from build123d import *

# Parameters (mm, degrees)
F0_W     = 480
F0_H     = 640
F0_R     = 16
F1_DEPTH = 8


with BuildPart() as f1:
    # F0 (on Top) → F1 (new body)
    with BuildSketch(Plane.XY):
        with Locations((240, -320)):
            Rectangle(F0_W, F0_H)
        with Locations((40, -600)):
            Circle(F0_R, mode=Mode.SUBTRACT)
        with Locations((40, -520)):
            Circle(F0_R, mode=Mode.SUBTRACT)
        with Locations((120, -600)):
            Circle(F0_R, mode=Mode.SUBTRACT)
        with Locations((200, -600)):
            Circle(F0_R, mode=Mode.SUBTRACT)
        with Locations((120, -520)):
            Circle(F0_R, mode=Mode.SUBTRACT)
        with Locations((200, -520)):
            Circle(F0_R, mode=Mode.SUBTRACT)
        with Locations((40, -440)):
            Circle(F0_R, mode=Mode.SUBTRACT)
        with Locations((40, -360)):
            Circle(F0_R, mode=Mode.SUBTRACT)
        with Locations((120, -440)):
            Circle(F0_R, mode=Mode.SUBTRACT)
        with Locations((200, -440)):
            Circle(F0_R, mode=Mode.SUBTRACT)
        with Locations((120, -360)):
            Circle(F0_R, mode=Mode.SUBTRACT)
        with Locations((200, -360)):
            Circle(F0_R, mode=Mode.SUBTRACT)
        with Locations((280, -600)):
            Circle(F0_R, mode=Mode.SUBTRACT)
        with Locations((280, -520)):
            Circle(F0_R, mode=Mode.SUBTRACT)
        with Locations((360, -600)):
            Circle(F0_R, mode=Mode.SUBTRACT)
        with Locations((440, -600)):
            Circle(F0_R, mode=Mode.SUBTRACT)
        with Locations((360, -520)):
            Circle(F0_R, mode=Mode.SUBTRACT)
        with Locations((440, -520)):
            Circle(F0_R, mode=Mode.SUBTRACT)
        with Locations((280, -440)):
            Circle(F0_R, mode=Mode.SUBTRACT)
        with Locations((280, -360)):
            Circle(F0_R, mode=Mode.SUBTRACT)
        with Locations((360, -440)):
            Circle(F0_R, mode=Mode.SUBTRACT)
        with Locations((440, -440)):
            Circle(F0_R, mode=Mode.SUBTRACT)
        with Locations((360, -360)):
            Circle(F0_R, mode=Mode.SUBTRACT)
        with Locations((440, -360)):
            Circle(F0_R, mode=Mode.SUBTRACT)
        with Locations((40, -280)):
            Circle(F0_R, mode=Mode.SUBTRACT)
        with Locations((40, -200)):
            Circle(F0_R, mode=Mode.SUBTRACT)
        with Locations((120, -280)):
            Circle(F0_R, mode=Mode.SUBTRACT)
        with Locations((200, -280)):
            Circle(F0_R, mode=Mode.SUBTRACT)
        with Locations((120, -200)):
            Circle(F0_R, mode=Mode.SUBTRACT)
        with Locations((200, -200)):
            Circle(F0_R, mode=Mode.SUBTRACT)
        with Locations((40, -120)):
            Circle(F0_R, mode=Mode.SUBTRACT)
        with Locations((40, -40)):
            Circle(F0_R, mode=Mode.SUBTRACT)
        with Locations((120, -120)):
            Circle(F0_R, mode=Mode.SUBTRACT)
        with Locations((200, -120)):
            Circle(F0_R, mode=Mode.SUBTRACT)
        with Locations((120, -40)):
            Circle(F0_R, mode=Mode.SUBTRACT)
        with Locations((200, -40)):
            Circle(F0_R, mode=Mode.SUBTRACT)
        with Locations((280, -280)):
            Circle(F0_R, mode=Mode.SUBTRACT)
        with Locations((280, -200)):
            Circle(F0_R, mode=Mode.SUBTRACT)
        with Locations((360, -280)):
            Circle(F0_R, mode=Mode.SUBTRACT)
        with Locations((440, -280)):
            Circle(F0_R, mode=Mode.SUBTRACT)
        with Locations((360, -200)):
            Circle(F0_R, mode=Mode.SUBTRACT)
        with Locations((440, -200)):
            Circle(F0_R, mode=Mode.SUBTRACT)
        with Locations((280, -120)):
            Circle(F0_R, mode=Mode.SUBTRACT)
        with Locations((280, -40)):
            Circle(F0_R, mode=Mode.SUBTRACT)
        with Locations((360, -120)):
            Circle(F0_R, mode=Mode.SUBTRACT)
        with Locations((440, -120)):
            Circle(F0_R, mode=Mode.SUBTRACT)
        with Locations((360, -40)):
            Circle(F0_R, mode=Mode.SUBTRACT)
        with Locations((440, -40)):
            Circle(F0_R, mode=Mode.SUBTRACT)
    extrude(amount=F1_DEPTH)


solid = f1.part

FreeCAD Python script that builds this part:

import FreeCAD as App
import Part
import Sketcher

V = App.Vector

doc = App.newDocument("Part")
params = doc.addObject("Spreadsheet::Sheet", "Params")
for row, (alias, value) in enumerate([
    ("sketch1_diameter", "32 mm"),
    ("sketch1_width", "480 mm"),
    ("sketch1_height", "640 mm"),
    ("pad1_length", "8 mm"),
], start=1):
    params.set(f"A{row}", alias)
    params.set(f"B{row}", "=" + value)
    params.setAlias(f"B{row}", alias)

body = doc.addObject("PartDesign::Body", "Body")

# Sketch on XY plane
sketch1 = doc.addObject("Sketcher::SketchObject", "Sketch")
body.addObject(sketch1)
sketch1.AttachmentSupport = (doc.XY_Plane, [""])
sketch1.MapMode = "FlatFace"
sketch1.addGeometry([
    Part.LineSegment(V(0, 0, 0), V(0, -640, 0)),  # 0
    Part.LineSegment(V(0, -640, 0), V(480, -640, 0)),  # 1
    Part.LineSegment(V(480, -640, 0), V(480, 0, 0)),  # 2
    Part.LineSegment(V(480, 0, 0), V(0, 0, 0)),  # 3
    Part.Circle(V(40, -600, 0), V(0, 0, 1), 16),  # 4
    Part.Circle(V(120, -600, 0), V(0, 0, 1), 16),  # 5
    Part.Circle(V(40, -520, 0), V(0, 0, 1), 16),  # 6
    Part.Circle(V(120, -520, 0), V(0, 0, 1), 16),  # 7
    Part.Circle(V(200, -600, 0), V(0, 0, 1), 16),  # 8
    Part.Circle(V(200, -520, 0), V(0, 0, 1), 16),  # 9
    Part.Circle(V(40, -440, 0), V(0, 0, 1), 16),  # 10
    Part.Circle(V(120, -440, 0), V(0, 0, 1), 16),  # 11
    Part.Circle(V(40, -360, 0), V(0, 0, 1), 16),  # 12
    Part.Circle(V(120, -360, 0), V(0, 0, 1), 16),  # 13
    Part.Circle(V(200, -440, 0), V(0, 0, 1), 16),  # 14
    Part.Circle(V(200, -360, 0), V(0, 0, 1), 16),  # 15
    Part.Circle(V(280, -600, 0), V(0, 0, 1), 16),  # 16
    Part.Circle(V(280, -520, 0), V(0, 0, 1), 16),  # 17
    Part.Circle(V(360, -600, 0), V(0, 0, 1), 16),  # 18
    Part.Circle(V(440, -600, 0), V(0, 0, 1), 16),  # 19
    Part.Circle(V(360, -520, 0), V(0, 0, 1), 16),  # 20
    Part.Circle(V(440, -520, 0), V(0, 0, 1), 16),  # 21
    Part.Circle(V(280, -440, 0), V(0, 0, 1), 16),  # 22
    Part.Circle(V(280, -360, 0), V(0, 0, 1), 16),  # 23
    Part.Circle(V(360, -440, 0), V(0, 0, 1), 16),  # 24
    Part.Circle(V(440, -440, 0), V(0, 0, 1), 16),  # 25
    Part.Circle(V(360, -360, 0), V(0, 0, 1), 16),  # 26
    Part.Circle(V(440, -360, 0), V(0, 0, 1), 16),  # 27
    Part.Circle(V(40, -280, 0), V(0, 0, 1), 16),  # 28
    Part.Circle(V(120, -280, 0), V(0, 0, 1), 16),  # 29
    Part.Circle(V(40, -200, 0), V(0, 0, 1), 16),  # 30
    Part.Circle(V(120, -200, 0), V(0, 0, 1), 16),  # 31
    Part.Circle(V(200, -280, 0), V(0, 0, 1), 16),  # 32
    Part.Circle(V(200, -200, 0), V(0, 0, 1), 16),  # 33
    Part.Circle(V(40, -120, 0), V(0, 0, 1), 16),  # 34
    Part.Circle(V(120, -120, 0), V(0, 0, 1), 16),  # 35
    Part.Circle(V(40, -40, 0), V(0, 0, 1), 16),  # 36
    Part.Circle(V(120, -40, 0), V(0, 0, 1), 16),  # 37
    Part.Circle(V(200, -120, 0), V(0, 0, 1), 16),  # 38
    Part.Circle(V(200, -40, 0), V(0, 0, 1), 16),  # 39
    Part.Circle(V(280, -280, 0), V(0, 0, 1), 16),  # 40
    Part.Circle(V(280, -200, 0), V(0, 0, 1), 16),  # 41
    Part.Circle(V(360, -280, 0), V(0, 0, 1), 16),  # 42
    Part.Circle(V(440, -280, 0), V(0, 0, 1), 16),  # 43
    Part.Circle(V(360, -200, 0), V(0, 0, 1), 16),  # 44
    Part.Circle(V(440, -200, 0), V(0, 0, 1), 16),  # 45
    Part.Circle(V(280, -120, 0), V(0, 0, 1), 16),  # 46
    Part.Circle(V(280, -40, 0), V(0, 0, 1), 16),  # 47
    Part.Circle(V(360, -120, 0), V(0, 0, 1), 16),  # 48
    Part.Circle(V(440, -120, 0), V(0, 0, 1), 16),  # 49
    Part.Circle(V(360, -40, 0), V(0, 0, 1), 16),  # 50
    Part.Circle(V(440, -40, 0), V(0, 0, 1), 16),  # 51
], False)
sketch1.addConstraint([
    Sketcher.Constraint("Coincident", 0, 2, 1, 1),
    Sketcher.Constraint("Coincident", 1, 2, 2, 1),
    Sketcher.Constraint("Coincident", 2, 2, 3, 1),
    Sketcher.Constraint("Coincident", 3, 2, 0, 1),
    Sketcher.Constraint("Vertical", 0),
    Sketcher.Constraint("Horizontal", 1),
    Sketcher.Constraint("Vertical", 2),
    Sketcher.Constraint("Horizontal", 3),
    Sketcher.Constraint("Coincident", 3, 2, -1, 1),
    Sketcher.Constraint("Equal", 4, 5),
    Sketcher.Constraint("Equal", 5, 6),
    Sketcher.Constraint("Equal", 6, 7),
    Sketcher.Constraint("Equal", 7, 8),
    Sketcher.Constraint("Equal", 8, 9),
    Sketcher.Constraint("Equal", 9, 10),
    Sketcher.Constraint("Equal", 10, 11),
    Sketcher.Constraint("Equal", 11, 12),
    Sketcher.Constraint("Equal", 12, 13),
    Sketcher.Constraint("Equal", 13, 14),
    Sketcher.Constraint("Equal", 14, 15),
    Sketcher.Constraint("Equal", 15, 16),
    Sketcher.Constraint("Equal", 16, 17),
    Sketcher.Constraint("Equal", 17, 18),
    Sketcher.Constraint("Equal", 18, 19),
    Sketcher.Constraint("Equal", 19, 20),
    Sketcher.Constraint("Equal", 20, 21),
    Sketcher.Constraint("Equal", 21, 22),
    Sketcher.Constraint("Equal", 22, 23),
    Sketcher.Constraint("Equal", 23, 24),
    Sketcher.Constraint("Equal", 24, 25),
    Sketcher.Constraint("Equal", 25, 26),
    Sketcher.Constraint("Equal", 26, 27),
    Sketcher.Constraint("Equal", 27, 28),
    Sketcher.Constraint("Equal", 28, 29),
    Sketcher.Constraint("Equal", 29, 30),
    Sketcher.Constraint("Equal", 30, 31),
    Sketcher.Constraint("Equal", 31, 32),
    Sketcher.Constraint("Equal", 32, 33),
    Sketcher.Constraint("Equal", 33, 34),
    Sketcher.Constraint("Equal", 34, 35),
    Sketcher.Constraint("Equal", 35, 36),
    Sketcher.Constraint("Equal", 36, 37),
    Sketcher.Constraint("Equal", 37, 38),
    Sketcher.Constraint("Equal", 38, 39),
    Sketcher.Constraint("Equal", 39, 40),
    Sketcher.Constraint("Equal", 40, 41),
    Sketcher.Constraint("Equal", 41, 42),
    Sketcher.Constraint("Equal", 42, 43),
    Sketcher.Constraint("Equal", 43, 44),
    Sketcher.Constraint("Equal", 44, 45),
    Sketcher.Constraint("Equal", 45, 46),
    Sketcher.Constraint("Equal", 46, 47),
    Sketcher.Constraint("Equal", 47, 48),
    Sketcher.Constraint("Equal", 48, 49),
    Sketcher.Constraint("Equal", 49, 50),
    Sketcher.Constraint("Equal", 50, 51),
    Sketcher.Constraint("Horizontal", 4, 3, 5, 3),
    Sketcher.Constraint("Horizontal", 6, 3, 7, 3),
    Sketcher.Constraint("Horizontal", 5, 3, 8, 3),
    Sketcher.Constraint("Horizontal", 7, 3, 9, 3),
    Sketcher.Constraint("Horizontal", 10, 3, 11, 3),
    Sketcher.Constraint("Horizontal", 12, 3, 13, 3),
    Sketcher.Constraint("Horizontal", 11, 3, 14, 3),
    Sketcher.Constraint("Horizontal", 13, 3, 15, 3),
    Sketcher.Constraint("Horizontal", 8, 3, 16, 3),
    Sketcher.Constraint("Horizontal", 9, 3, 17, 3),
    Sketcher.Constraint("Horizontal", 16, 3, 18, 3),
    Sketcher.Constraint("Horizontal", 18, 3, 19, 3),
    Sketcher.Constraint("Horizontal", 17, 3, 20, 3),
    Sketcher.Constraint("Horizontal", 20, 3, 21, 3),
    Sketcher.Constraint("Horizontal", 14, 3, 22, 3),
    Sketcher.Constraint("Horizontal", 15, 3, 23, 3),
    Sketcher.Constraint("Horizontal", 22, 3, 24, 3),
    Sketcher.Constraint("Horizontal", 24, 3, 25, 3),
    Sketcher.Constraint("Horizontal", 23, 3, 26, 3),
    Sketcher.Constraint("Horizontal", 26, 3, 27, 3),
    Sketcher.Constraint("Horizontal", 28, 3, 29, 3),
    Sketcher.Constraint("Horizontal", 30, 3, 31, 3),
    Sketcher.Constraint("Horizontal", 29, 3, 32, 3),
    Sketcher.Constraint("Horizontal", 31, 3, 33, 3),
    Sketcher.Constraint("Horizontal", 34, 3, 35, 3),
    Sketcher.Constraint("Horizontal", 36, 3, 37, 3),
    Sketcher.Constraint("Horizontal", 35, 3, 38, 3),
    Sketcher.Constraint("Horizontal", 37, 3, 39, 3),
    Sketcher.Constraint("Horizontal", 32, 3, 40, 3),
    Sketcher.Constraint("Horizontal", 33, 3, 41, 3),
    Sketcher.Constraint("Horizontal", 40, 3, 42, 3),
    Sketcher.Constraint("Horizontal", 42, 3, 43, 3),
    Sketcher.Constraint("Horizontal", 41, 3, 44, 3),
    Sketcher.Constraint("Horizontal", 44, 3, 45, 3),
    Sketcher.Constraint("Horizontal", 38, 3, 46, 3),
    Sketcher.Constraint("Horizontal", 39, 3, 47, 3),
    Sketcher.Constraint("Horizontal", 46, 3, 48, 3),
    Sketcher.Constraint("Horizontal", 48, 3, 49, 3),
    Sketcher.Constraint("Horizontal", 47, 3, 50, 3),
    Sketcher.Constraint("Horizontal", 50, 3, 51, 3),
    Sketcher.Constraint("Vertical", 4, 3, 6, 3),
    Sketcher.Constraint("Vertical", 5, 3, 7, 3),
    Sketcher.Constraint("Vertical", 8, 3, 9, 3),
    Sketcher.Constraint("Vertical", 6, 3, 10, 3),
    Sketcher.Constraint("Vertical", 7, 3, 11, 3),
    Sketcher.Constraint("Vertical", 10, 3, 12, 3),
    Sketcher.Constraint("Vertical", 11, 3, 13, 3),
    Sketcher.Constraint("Vertical", 9, 3, 14, 3),
    Sketcher.Constraint("Vertical", 14, 3, 15, 3),
    Sketcher.Constraint("Vertical", 16, 3, 17, 3),
    Sketcher.Constraint("Vertical", 18, 3, 20, 3),
    Sketcher.Constraint("Vertical", 19, 3, 21, 3),
    Sketcher.Constraint("Vertical", 17, 3, 22, 3),
    Sketcher.Constraint("Vertical", 22, 3, 23, 3),
    Sketcher.Constraint("Vertical", 20, 3, 24, 3),
    Sketcher.Constraint("Vertical", 21, 3, 25, 3),
    Sketcher.Constraint("Vertical", 24, 3, 26, 3),
    Sketcher.Constraint("Vertical", 25, 3, 27, 3),
    Sketcher.Constraint("Vertical", 12, 3, 28, 3),
    Sketcher.Constraint("Vertical", 13, 3, 29, 3),
    Sketcher.Constraint("Vertical", 28, 3, 30, 3),
    Sketcher.Constraint("Vertical", 29, 3, 31, 3),
    Sketcher.Constraint("Vertical", 15, 3, 32, 3),
    Sketcher.Constraint("Vertical", 32, 3, 33, 3),
    Sketcher.Constraint("Vertical", 30, 3, 34, 3),
    Sketcher.Constraint("Vertical", 31, 3, 35, 3),
    Sketcher.Constraint("Vertical", 34, 3, 36, 3),
    Sketcher.Constraint("Vertical", 35, 3, 37, 3),
    Sketcher.Constraint("Vertical", 33, 3, 38, 3),
    Sketcher.Constraint("Vertical", 38, 3, 39, 3),
    Sketcher.Constraint("Vertical", 23, 3, 40, 3),
    Sketcher.Constraint("Vertical", 40, 3, 41, 3),
    Sketcher.Constraint("Vertical", 26, 3, 42, 3),
    Sketcher.Constraint("Vertical", 27, 3, 43, 3),
    Sketcher.Constraint("Vertical", 42, 3, 44, 3),
    Sketcher.Constraint("Vertical", 43, 3, 45, 3),
    Sketcher.Constraint("Vertical", 41, 3, 46, 3),
    Sketcher.Constraint("Vertical", 46, 3, 47, 3),
    Sketcher.Constraint("Vertical", 44, 3, 48, 3),
    Sketcher.Constraint("Vertical", 45, 3, 49, 3),
    Sketcher.Constraint("Vertical", 48, 3, 50, 3),
    Sketcher.Constraint("Vertical", 49, 3, 51, 3),
    Sketcher.Constraint("Diameter", 4, 32.0),
    Sketcher.Constraint("DistanceX", 1, 1, 1, 2, 480.0),
    Sketcher.Constraint("DistanceY", 0, 2, 0, 1, 640.0),
    Sketcher.Constraint("DistanceX", -1, 1, 4, 3, 40.0),
    Sketcher.Constraint("DistanceY", 4, 3, -1, 1, 600.0),
    Sketcher.Constraint("DistanceX", -1, 1, 5, 3, 120.0),
    Sketcher.Constraint("DistanceY", 6, 3, -1, 1, 520.0),
    Sketcher.Constraint("DistanceX", -1, 1, 8, 3, 200.0),
    Sketcher.Constraint("DistanceY", 10, 3, -1, 1, 440.0),
    Sketcher.Constraint("DistanceY", 12, 3, -1, 1, 360.0),
    Sketcher.Constraint("DistanceX", -1, 1, 16, 3, 280.0),
    Sketcher.Constraint("DistanceX", -1, 1, 18, 3, 360.0),
    Sketcher.Constraint("DistanceX", -1, 1, 19, 3, 440.0),
    Sketcher.Constraint("DistanceY", 28, 3, -1, 1, 280.0),
    Sketcher.Constraint("DistanceY", 30, 3, -1, 1, 200.0),
    Sketcher.Constraint("DistanceY", 34, 3, -1, 1, 120.0),
    Sketcher.Constraint("DistanceY", 36, 3, -1, 1, 40.0),
])
sketch1.setExpression("Constraints[138]", "Params.sketch1_diameter")
sketch1.setExpression("Constraints[139]", "Params.sketch1_width")
sketch1.setExpression("Constraints[140]", "Params.sketch1_height")
pad1 = doc.addObject("PartDesign::Pad", "Pad")
body.addObject(pad1)
pad1.Profile = sketch1
pad1.setExpression("Length", "Params.pad1_length")

doc.recompute()
